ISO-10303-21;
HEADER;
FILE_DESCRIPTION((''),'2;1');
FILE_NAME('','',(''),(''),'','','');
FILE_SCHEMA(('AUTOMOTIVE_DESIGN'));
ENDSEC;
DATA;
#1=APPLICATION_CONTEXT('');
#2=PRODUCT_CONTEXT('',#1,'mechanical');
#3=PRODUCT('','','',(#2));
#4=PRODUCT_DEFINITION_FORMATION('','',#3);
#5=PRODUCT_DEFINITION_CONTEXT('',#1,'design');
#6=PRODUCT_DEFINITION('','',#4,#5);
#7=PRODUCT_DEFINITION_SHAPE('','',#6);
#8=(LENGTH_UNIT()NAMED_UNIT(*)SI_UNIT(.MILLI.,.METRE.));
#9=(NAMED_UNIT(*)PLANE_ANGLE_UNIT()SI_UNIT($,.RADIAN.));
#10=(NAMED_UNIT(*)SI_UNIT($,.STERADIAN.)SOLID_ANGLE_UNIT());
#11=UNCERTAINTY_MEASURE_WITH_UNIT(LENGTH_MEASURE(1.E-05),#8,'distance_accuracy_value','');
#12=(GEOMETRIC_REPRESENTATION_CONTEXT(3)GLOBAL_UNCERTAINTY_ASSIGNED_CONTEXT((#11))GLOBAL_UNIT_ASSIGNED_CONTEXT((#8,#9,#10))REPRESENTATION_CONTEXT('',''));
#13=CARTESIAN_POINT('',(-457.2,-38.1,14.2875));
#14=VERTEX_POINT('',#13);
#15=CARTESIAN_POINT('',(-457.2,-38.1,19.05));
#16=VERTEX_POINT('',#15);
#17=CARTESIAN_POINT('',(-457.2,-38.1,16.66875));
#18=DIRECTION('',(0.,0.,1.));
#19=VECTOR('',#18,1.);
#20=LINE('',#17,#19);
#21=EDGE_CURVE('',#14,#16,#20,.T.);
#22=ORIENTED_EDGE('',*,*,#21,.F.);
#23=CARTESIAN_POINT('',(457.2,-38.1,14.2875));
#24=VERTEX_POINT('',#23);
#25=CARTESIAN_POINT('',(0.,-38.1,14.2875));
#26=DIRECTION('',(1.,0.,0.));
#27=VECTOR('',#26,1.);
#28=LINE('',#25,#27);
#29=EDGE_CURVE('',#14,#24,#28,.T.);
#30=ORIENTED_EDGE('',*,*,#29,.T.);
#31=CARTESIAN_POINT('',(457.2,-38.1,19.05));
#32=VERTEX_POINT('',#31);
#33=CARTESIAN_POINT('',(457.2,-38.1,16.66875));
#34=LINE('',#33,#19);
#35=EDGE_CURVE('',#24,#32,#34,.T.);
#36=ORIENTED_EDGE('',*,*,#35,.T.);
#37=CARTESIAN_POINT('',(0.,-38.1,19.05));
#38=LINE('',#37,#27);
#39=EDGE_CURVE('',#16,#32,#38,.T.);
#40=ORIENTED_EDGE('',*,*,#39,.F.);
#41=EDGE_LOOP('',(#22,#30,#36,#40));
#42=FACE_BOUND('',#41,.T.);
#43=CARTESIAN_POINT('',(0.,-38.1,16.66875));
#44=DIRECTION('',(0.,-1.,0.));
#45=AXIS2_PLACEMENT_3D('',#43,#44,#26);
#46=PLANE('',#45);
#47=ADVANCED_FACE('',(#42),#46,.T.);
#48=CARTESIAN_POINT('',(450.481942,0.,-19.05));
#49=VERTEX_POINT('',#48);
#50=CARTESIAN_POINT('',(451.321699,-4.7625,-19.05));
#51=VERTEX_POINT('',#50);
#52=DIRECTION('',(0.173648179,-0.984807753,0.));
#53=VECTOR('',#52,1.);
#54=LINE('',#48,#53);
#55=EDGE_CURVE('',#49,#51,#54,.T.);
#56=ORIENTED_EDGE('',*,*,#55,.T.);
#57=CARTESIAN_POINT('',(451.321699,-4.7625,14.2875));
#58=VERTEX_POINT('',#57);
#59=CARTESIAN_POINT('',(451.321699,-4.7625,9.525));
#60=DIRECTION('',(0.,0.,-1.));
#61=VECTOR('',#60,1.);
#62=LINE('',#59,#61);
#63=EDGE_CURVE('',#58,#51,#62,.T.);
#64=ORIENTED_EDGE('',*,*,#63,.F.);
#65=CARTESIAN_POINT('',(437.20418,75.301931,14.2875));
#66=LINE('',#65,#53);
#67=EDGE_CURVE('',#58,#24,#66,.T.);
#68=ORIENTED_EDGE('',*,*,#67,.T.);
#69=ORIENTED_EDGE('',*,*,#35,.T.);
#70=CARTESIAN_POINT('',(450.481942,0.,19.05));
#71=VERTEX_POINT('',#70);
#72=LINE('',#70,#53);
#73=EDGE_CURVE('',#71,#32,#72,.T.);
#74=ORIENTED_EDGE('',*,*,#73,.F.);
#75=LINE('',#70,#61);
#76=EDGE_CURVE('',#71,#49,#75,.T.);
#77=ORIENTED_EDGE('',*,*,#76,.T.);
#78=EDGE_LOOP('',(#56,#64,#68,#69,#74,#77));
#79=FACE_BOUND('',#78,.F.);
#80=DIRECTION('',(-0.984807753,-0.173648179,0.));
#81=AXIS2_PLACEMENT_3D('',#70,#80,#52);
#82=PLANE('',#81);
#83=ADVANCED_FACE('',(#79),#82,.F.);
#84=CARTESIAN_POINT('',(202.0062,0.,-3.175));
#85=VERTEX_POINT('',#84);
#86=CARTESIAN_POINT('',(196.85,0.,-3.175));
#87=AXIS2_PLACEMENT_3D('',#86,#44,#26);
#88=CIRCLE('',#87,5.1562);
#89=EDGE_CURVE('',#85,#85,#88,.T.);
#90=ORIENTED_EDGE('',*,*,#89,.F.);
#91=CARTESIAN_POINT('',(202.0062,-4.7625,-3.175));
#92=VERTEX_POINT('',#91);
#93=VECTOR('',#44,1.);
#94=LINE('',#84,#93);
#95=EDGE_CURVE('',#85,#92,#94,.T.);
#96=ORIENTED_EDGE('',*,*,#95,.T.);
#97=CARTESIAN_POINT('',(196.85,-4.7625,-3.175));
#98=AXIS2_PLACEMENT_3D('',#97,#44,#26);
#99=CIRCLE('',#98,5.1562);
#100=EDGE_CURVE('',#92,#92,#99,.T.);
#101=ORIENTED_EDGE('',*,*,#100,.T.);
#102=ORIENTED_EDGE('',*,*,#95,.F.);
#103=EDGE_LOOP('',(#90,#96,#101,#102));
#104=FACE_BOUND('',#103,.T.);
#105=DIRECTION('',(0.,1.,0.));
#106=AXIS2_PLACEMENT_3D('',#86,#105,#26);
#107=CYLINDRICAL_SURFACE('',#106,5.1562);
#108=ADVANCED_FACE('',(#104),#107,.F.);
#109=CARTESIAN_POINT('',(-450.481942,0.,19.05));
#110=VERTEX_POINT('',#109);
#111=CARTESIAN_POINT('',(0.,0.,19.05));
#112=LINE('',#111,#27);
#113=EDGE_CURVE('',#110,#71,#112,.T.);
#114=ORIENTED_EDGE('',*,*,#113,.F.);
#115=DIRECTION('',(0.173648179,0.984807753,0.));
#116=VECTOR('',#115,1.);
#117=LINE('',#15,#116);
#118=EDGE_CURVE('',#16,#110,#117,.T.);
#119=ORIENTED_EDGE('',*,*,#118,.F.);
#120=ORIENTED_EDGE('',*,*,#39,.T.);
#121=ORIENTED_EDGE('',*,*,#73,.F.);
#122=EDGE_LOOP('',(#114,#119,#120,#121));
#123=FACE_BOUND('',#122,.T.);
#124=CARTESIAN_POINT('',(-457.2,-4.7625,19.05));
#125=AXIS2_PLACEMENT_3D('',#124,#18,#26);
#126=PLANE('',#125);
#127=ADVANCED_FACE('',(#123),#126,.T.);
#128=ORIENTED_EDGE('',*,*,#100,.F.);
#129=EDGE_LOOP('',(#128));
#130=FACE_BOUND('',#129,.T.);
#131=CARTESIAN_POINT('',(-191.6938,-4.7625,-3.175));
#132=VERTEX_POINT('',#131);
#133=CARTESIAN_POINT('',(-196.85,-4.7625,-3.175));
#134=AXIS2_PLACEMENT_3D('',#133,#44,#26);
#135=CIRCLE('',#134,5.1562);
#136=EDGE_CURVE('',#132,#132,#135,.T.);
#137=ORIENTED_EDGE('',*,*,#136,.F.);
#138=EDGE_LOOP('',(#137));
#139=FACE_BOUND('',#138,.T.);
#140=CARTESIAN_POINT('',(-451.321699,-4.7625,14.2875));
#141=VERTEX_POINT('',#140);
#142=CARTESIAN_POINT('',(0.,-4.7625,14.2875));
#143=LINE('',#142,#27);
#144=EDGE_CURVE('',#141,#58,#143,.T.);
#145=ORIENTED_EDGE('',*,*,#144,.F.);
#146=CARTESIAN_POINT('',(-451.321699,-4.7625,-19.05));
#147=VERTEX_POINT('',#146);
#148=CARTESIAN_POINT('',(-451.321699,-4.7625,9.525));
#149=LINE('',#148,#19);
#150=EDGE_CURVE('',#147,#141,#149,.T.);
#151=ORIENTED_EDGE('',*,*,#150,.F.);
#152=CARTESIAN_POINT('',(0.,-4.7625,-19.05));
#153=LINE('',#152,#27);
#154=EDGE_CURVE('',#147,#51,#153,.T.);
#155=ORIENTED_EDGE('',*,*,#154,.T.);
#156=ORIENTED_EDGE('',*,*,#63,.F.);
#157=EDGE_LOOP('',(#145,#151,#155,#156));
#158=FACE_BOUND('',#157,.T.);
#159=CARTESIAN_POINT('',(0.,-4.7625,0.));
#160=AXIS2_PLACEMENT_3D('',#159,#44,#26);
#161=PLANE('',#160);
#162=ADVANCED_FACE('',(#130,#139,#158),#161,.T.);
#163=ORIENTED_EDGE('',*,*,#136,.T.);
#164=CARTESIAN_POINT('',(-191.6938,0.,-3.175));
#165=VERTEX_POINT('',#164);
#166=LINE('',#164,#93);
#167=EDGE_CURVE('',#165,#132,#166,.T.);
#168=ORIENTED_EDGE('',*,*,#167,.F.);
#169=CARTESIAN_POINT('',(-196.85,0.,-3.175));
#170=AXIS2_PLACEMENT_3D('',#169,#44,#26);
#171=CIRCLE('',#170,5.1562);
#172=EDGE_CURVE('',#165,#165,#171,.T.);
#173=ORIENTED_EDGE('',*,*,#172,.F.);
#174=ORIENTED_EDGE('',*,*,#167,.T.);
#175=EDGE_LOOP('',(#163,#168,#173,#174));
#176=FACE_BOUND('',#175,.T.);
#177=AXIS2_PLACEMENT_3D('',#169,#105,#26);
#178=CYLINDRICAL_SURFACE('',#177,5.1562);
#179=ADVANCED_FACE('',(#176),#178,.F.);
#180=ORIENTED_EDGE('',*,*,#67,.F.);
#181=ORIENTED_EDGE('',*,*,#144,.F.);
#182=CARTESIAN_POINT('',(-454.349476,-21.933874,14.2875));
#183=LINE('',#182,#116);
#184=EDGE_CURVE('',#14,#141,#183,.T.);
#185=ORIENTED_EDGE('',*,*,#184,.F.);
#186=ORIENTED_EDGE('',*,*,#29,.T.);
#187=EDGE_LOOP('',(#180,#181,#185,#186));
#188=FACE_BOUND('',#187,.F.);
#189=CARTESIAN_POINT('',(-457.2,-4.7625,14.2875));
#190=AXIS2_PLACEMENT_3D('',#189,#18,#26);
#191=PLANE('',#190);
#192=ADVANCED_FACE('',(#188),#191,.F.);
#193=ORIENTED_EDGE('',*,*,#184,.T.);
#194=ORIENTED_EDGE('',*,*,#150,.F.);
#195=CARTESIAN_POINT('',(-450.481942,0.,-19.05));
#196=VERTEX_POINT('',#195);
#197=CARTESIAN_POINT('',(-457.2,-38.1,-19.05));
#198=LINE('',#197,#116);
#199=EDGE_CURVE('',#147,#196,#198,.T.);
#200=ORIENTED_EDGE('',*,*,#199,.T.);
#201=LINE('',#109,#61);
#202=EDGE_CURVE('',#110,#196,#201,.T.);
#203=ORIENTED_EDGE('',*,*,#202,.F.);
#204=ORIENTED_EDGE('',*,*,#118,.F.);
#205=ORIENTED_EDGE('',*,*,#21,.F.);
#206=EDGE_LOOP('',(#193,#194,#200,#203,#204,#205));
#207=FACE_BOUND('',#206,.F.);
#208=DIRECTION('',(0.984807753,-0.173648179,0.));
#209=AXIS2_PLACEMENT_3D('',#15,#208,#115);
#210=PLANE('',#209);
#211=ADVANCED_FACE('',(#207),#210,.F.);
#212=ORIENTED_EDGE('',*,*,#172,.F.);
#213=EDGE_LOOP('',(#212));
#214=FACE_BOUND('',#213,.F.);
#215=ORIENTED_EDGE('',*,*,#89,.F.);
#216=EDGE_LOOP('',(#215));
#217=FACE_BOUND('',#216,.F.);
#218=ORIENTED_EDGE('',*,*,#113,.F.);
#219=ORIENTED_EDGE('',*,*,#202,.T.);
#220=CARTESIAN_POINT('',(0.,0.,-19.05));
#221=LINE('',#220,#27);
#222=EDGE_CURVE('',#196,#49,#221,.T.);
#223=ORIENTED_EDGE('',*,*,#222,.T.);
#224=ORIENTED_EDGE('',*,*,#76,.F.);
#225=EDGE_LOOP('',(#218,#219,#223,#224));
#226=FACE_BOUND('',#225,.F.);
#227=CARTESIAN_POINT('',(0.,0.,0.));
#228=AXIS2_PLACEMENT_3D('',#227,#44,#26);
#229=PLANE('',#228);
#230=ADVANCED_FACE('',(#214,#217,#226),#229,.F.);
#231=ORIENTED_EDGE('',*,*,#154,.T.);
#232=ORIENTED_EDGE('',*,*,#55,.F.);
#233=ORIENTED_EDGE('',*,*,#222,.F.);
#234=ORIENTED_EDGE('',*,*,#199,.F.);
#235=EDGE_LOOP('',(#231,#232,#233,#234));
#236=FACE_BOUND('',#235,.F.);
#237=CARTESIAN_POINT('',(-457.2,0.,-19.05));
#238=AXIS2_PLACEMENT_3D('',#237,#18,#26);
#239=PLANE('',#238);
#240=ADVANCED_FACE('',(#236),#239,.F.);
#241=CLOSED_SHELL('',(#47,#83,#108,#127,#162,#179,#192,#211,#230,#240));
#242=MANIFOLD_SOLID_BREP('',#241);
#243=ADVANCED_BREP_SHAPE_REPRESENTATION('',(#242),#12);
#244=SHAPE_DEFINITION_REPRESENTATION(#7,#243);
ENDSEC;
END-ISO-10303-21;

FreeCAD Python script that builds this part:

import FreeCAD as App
import Part
import Sketcher
Q = App.Units.Quantity


def add_polygon(sketch, points):
    """Adds a closed chain of lines whose ends are joined by coincident constraints."""
    first, n = sketch.GeometryCount, len(points)
    for a, b in zip(points, points[1:] + points[:1]):
        sketch.addGeometry(Part.LineSegment(App.Vector(*a, 0), App.Vector(*b, 0)), False)
    for i in range(n):
        sketch.addConstraint(Sketcher.Constraint("Coincident", first + i, 2, first + (i + 1) % n, 1))

doc = App.newDocument("Part")
body = doc.addObject("PartDesign::Body", "Body")

# Sketch on XZ plane
sketch1 = doc.addObject("Sketcher::SketchObject", "Sketch")
body.addObject(sketch1)
sketch1.AttachmentSupport = (doc.XZ_Plane, [""])
sketch1.MapMode = "FlatFace"
add_polygon(sketch1, [(-457, 19), (-457, -19), (457, -19), (457, 19)])  # lines 0-3
sketch1.addGeometry(Part.Circle(App.Vector(-197, -3, 0), App.Vector(0, 0, 1), 5), False)  # 4
sketch1.addGeometry(Part.Circle(App.Vector(197, -3, 0), App.Vector(0, 0, 1), 5), False)  # 5
sketch1.addConstraint([
    Sketcher.Constraint("Vertical", 0),
    Sketcher.Constraint("Horizontal", 1),
    Sketcher.Constraint("Vertical", 2),
    Sketcher.Constraint("Horizontal", 3),
    Sketcher.Constraint("Equal", 4, 5),
    Sketcher.Constraint("Symmetric", 0, 2, 2, 2, -1, 1),
    Sketcher.Constraint("Symmetric", 4, 3, 5, 3, -2),
    Sketcher.Constraint("DistanceX", 1, 1, 1, 2, Q("36 in")),
    Sketcher.Constraint("Diameter", 4, Q("0.406 in")),
    Sketcher.Constraint("DistanceY", 0, 2, 0, 1, Q("1.5 in")),
    Sketcher.Constraint("DistanceX", 4, 3, 5, 3, Q("15.5 in")),
    Sketcher.Constraint("DistanceY", 4, 3, -1, 1, Q("0.125 in")),
])
pad1 = doc.addObject("PartDesign::Pad", "Pad")
body.addObject(pad1)
pad1.Profile = sketch1
pad1.Length = Q("0.1875 in")

# Sketch on XZ plane
sketch2 = doc.addObject("Sketcher::SketchObject", "Sketch001")
body.addObject(sketch2)
sketch2.AttachmentSupport = (doc.XZ_Plane, [""])
sketch2.MapMode = "FlatFace"
sketch2.AttachmentOffset = App.Placement(App.Vector(0, 0, 0.1875 * 25.4), App.Rotation())
add_polygon(sketch2, [(-457.2, 19.1), (-457.2, 14.3), (457.2, 14.3), (457.2, 19.1)])  # lines 0-3
sketch2.addConstraint([
    Sketcher.Constraint("Vertical", 0),
    Sketcher.Constraint("Horizontal", 1),
    Sketcher.Constraint("Vertical", 2),
    Sketcher.Constraint("Horizontal", 3),
    Sketcher.Constraint("DistanceX", 1, 1, 1, 2, Q("36 in")),
    Sketcher.Constraint("DistanceX", 0, 2, -1, 1, Q("18 in")),
    Sketcher.Constraint("DistanceY", 0, 2, 0, 1, Q("0.1875 in")),
    Sketcher.Constraint("DistanceY", -1, 1, 2, 2, Q("0.75 in")),
])
pad2 = doc.addObject("PartDesign::Pad", "Pad001")
body.addObject(pad2)
pad2.Profile = sketch2
pad2.Length = Q("1.3125 in")

# Sketch on XY plane
sketch3 = doc.addObject("Sketcher::SketchObject", "Sketch002")
body.addObject(sketch3)
sketch3.AttachmentSupport = (doc.XY_Plane, [""])
sketch3.MapMode = "FlatFace"
sketch3.AttachmentOffset = App.Placement(App.Vector(0, 0, 0.75 * 25.4), App.Rotation())
add_polygon(sketch3, [(450, 0), (457, -38), (457, 0)])  # lines 0-2
add_polygon(sketch3, [(-457, 0), (-457, -38), (-450, 0)])  # lines 3-5
sketch3.addConstraint([
    Sketcher.Constraint("Vertical", 1),
    Sketcher.Constraint("Horizontal", 2),
    Sketcher.Constraint("Vertical", 3),
    Sketcher.Constraint("Horizontal", 5),
    Sketcher.Constraint("Symmetric", 2, 2, 4, 2, -1, 1),
    Sketcher.Constraint("Symmetric", 0, 2, 3, 2, -2),
    Sketcher.Constraint("PointOnObject", 1, 2, -1),
    Sketcher.Constraint("DistanceY", 1, 1, 1, 2, Q("1.5 in")),
    Sketcher.Constraint("DistanceX", -1, 1, 0, 2, Q("18 in")),
    Sketcher.Constraint("Angle", 0, Q("-80 deg")),
])
pocket1 = doc.addObject("PartDesign::Pocket", "Pocket")
body.addObject(pocket1)
pocket1.Profile = sketch3
pocket1.Length = Q("1.5 in")

doc.recompute()
